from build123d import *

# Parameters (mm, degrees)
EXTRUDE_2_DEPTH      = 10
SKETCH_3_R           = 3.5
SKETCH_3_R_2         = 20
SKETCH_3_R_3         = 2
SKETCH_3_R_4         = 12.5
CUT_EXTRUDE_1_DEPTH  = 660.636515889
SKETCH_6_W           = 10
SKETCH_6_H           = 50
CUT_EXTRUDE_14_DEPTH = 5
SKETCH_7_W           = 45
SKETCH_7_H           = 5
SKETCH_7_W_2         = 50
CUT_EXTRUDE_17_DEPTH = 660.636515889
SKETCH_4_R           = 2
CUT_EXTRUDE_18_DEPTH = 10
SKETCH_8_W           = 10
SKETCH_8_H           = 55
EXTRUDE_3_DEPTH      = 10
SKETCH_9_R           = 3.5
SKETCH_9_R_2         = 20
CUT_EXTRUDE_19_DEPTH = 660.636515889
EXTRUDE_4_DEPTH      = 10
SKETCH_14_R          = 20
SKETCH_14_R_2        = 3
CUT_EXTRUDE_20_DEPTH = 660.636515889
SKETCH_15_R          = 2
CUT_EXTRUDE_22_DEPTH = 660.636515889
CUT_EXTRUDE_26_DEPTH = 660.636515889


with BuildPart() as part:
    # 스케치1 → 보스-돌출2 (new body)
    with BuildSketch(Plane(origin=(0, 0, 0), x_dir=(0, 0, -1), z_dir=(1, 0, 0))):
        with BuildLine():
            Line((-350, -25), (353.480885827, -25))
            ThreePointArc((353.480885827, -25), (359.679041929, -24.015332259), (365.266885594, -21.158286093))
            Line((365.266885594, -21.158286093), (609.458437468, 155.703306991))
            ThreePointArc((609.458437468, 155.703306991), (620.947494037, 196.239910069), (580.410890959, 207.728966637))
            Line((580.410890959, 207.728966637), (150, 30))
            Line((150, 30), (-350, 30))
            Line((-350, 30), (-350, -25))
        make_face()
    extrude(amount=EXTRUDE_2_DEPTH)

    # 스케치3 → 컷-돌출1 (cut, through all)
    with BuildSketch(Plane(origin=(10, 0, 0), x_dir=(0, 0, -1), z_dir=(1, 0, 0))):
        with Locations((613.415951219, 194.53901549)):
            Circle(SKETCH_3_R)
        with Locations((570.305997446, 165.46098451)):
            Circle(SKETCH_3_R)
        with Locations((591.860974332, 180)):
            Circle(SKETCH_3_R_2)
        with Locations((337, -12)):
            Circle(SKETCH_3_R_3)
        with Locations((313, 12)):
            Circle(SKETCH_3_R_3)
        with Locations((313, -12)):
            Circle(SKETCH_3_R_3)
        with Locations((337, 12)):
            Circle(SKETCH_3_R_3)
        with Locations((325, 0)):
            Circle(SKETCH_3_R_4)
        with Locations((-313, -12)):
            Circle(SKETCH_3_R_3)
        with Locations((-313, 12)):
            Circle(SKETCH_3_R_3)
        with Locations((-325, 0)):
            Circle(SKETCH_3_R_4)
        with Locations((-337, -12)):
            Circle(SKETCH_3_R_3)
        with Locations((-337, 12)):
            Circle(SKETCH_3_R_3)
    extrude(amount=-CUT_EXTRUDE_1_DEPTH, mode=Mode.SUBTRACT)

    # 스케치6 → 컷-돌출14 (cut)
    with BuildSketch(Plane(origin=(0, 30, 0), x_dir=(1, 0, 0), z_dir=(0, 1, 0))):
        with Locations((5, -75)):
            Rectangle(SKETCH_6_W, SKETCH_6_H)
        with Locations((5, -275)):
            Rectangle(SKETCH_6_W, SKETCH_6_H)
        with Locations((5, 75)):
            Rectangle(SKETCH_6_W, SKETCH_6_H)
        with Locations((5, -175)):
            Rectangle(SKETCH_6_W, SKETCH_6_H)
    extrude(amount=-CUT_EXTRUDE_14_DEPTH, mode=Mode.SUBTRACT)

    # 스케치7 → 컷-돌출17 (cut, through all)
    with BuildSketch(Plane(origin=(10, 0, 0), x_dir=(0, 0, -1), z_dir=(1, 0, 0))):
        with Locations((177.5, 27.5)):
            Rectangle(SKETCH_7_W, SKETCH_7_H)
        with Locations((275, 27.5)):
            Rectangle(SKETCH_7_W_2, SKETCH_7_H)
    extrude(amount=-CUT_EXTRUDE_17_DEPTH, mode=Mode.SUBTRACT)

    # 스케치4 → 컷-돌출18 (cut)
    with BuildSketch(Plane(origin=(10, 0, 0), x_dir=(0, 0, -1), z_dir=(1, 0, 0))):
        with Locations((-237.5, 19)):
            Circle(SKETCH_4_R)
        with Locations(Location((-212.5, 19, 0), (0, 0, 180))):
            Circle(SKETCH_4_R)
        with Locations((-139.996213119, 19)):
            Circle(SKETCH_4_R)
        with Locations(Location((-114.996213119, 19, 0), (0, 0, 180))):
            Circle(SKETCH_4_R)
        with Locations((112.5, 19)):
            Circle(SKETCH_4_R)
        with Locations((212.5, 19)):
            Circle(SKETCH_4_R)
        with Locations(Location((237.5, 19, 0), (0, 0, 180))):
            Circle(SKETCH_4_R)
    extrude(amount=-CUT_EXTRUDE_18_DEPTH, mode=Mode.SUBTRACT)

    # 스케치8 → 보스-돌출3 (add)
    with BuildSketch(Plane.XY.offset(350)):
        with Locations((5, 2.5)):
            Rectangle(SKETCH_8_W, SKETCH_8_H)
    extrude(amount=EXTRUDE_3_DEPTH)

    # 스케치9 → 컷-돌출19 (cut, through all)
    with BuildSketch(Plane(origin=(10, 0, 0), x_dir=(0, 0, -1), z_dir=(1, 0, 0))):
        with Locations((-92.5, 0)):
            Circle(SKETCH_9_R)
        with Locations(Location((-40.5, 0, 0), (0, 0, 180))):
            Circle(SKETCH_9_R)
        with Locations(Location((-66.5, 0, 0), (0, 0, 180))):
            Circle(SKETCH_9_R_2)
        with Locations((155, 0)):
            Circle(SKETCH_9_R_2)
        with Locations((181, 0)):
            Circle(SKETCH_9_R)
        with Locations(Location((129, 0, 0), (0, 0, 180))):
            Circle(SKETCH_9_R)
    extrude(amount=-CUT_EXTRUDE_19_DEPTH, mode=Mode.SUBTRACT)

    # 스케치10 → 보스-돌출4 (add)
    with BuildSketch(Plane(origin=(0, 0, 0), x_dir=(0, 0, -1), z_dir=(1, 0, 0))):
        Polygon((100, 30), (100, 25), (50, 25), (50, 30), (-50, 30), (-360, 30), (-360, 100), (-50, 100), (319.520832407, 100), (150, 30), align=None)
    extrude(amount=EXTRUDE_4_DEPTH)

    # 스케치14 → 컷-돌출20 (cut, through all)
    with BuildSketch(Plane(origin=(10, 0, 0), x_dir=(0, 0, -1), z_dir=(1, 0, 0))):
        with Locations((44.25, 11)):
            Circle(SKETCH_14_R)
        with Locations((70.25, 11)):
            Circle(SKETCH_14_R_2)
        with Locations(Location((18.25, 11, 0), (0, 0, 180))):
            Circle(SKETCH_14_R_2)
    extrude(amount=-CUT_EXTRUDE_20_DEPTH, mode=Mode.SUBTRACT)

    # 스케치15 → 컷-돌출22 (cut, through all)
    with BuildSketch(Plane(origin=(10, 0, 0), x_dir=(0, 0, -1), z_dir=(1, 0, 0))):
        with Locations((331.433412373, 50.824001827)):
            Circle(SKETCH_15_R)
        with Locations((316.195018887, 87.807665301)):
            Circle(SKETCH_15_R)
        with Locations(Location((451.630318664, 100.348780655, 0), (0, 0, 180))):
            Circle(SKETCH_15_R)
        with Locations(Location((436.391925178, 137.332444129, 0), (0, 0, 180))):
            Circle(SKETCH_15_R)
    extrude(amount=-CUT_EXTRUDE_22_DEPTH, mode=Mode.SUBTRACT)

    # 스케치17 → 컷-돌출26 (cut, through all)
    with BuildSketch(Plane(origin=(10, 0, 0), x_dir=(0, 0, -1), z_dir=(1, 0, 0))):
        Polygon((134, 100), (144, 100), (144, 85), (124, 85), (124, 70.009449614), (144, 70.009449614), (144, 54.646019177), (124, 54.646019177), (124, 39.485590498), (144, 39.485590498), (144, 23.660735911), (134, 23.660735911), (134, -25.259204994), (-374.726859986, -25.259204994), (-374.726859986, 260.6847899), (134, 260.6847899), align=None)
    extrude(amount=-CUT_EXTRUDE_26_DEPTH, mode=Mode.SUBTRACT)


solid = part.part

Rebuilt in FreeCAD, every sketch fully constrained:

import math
import FreeCAD as App
import Part
import Sketcher
from FreeCAD import Vector
Q = App.Units.Quantity


def add_polygon(sketch, points):
    """Adds a closed chain of lines whose ends are joined by coincident constraints."""
    first, n = sketch.GeometryCount, len(points)
    for a, b in zip(points, points[1:] + points[:1]):
        sketch.addGeometry(Part.LineSegment(App.Vector(*a, 0), App.Vector(*b, 0)), False)
    for i in range(n):
        sketch.addConstraint(Sketcher.Constraint("Coincident", first + i, 2, first + (i + 1) % n, 1))

doc = App.newDocument("Part")
body = doc.addObject("PartDesign::Body", "Body")

sketch1 = body.newObject("Sketcher::SketchObject", "Sketch")
sketch1.AttachmentSupport = (doc.getObject("YZ_Plane"), [""])
sketch1.MapMode = "FlatFace"
sketch1.addGeometry(Part.LineSegment(Vector(-25, 350, 0), Vector(-25, -353.480886, 0)), False)
sketch1.addGeometry(Part.ArcOfCircle(Part.Circle(Vector(-5, -353.480886, 0), Vector(0, 0, 1), 20), math.radians(-180), math.radians(-143.892651)), False)
sketch1.addGeometry(Part.LineSegment(Vector(-21.158286, -365.266886, 0), Vector(155.703307, -609.458437, 0)), False)
sketch1.addGeometry(Part.ArcOfCircle(Part.Circle(Vector(181.716137, -594.934664, 0), Vector(0, 0, 1), 29.792739), math.radians(-150.824016), math.radians(29.175984)), False)
sketch1.addGeometry(Part.LineSegment(Vector(207.728967, -580.410891, 0), Vector(30, -150, 0)), False)
sketch1.addGeometry(Part.LineSegment(Vector(30, -150, 0), Vector(30, 350, 0)), False)
sketch1.addGeometry(Part.LineSegment(Vector(30, 350, 0), Vector(-25, 350, 0)), False)
sketch1.addConstraint(Sketcher.Constraint("Tangent", 0, 2, 1, 1))
sketch1.addConstraint(Sketcher.Constraint("Coincident", 1, 2, 2, 1))
sketch1.addConstraint(Sketcher.Constraint("Coincident", 2, 2, 3, 1))
sketch1.addConstraint(Sketcher.Constraint("Coincident", 3, 2, 4, 1))
sketch1.addConstraint(Sketcher.Constraint("Coincident", 4, 2, 5, 1))
sketch1.addConstraint(Sketcher.Constraint("Coincident", 5, 2, 6, 1))
sketch1.addConstraint(Sketcher.Constraint("Coincident", 6, 2, 0, 1))
sketch1.addConstraint(Sketcher.Constraint("Vertical", 0))
sketch1.addConstraint(Sketcher.Constraint("Vertical", 5))
sketch1.addConstraint(Sketcher.Constraint("Horizontal", 6))
sketch1.addConstraint(Sketcher.Constraint("Radius", 1, Q("20 mm")))
sketch1.addConstraint(Sketcher.Constraint("DistanceX", 6, 2, 6, 1, Q("55 mm")))
sketch1.addConstraint(Sketcher.Constraint("DistanceY", 5, 1, 5, 2, Q("500 mm")))
sketch1.addConstraint(Sketcher.Constraint("DistanceX", 1, 3, -1, 1, Q("5 mm")))
sketch1.addConstraint(Sketcher.Constraint("DistanceY", 4, 2, -1, 1, Q("150 mm")))
sketch1.addConstraint(Sketcher.Constraint("Radius", 3, Q("29.792739 mm")))
sketch1.addConstraint(Sketcher.Constraint("DistanceY", 1, 2, 0, 2, Q("11.786 mm")))
sketch1.addConstraint(Sketcher.Constraint("DistanceY", 0, 2, 0, 1, Q("703.480886 mm")))
sketch1.addConstraint(Sketcher.Constraint("DistanceY", 3, 2, -1, 1, Q("580.410891 mm")))
sketch1.addConstraint(Sketcher.Constraint("DistanceY", 3, 3, 1, 3, Q("241.453778 mm")))
sketch1.addConstraint(Sketcher.Constraint("DistanceX", 2, 2, 3, 3, Q("26.01283 mm")))
sketch1.addConstraint(Sketcher.Constraint("Distance", 2, Q("301.512085 mm")))
pad1 = body.newObject("PartDesign::Pad", "Pad")
pad1.Profile = sketch1
pad1.Length = 10

sketch2 = body.newObject("Sketcher::SketchObject", "Sketch001")
sketch2.AttachmentSupport = (doc.getObject("YZ_Plane"), [""])
sketch2.MapMode = "FlatFace"
sketch2.AttachmentOffset = App.Placement(Vector(0, 0, 10), App.Rotation())
sketch2.addGeometry(Part.Circle(Vector(194.539015, -613.415951, 0), Vector(0, 0, 1), 3.5), False)
sketch2.addGeometry(Part.Circle(Vector(165.460985, -570.305997, 0), Vector(0, 0, 1), 3.5), False)
sketch2.addGeometry(Part.Circle(Vector(180, -591.860974, 0), Vector(0, 0, 1), 20), False)
sketch2.addGeometry(Part.Circle(Vector(-12, -337, 0), Vector(0, 0, 1), 2), False)
sketch2.addGeometry(Part.Circle(Vector(12, -313, 0), Vector(0, 0, 1), 2), False)
sketch2.addGeometry(Part.Circle(Vector(-12, -313, 0), Vector(0, 0, 1), 2), False)
sketch2.addGeometry(Part.Circle(Vector(12, -337, 0), Vector(0, 0, 1), 2), False)
sketch2.addGeometry(Part.Circle(Vector(0, -325, 0), Vector(0, 0, 1), 12.5), False)
sketch2.addGeometry(Part.Circle(Vector(-12, 313, 0), Vector(0, 0, 1), 2), False)
sketch2.addGeometry(Part.Circle(Vector(12, 313, 0), Vector(0, 0, 1), 2), False)
sketch2.addGeometry(Part.Circle(Vector(0, 325, 0), Vector(0, 0, 1), 12.5), False)
sketch2.addGeometry(Part.Circle(Vector(-12, 337, 0), Vector(0, 0, 1), 2), False)
sketch2.addGeometry(Part.Circle(Vector(12, 337, 0), Vector(0, 0, 1), 2), False)
sketch2.addConstraint(Sketcher.Constraint("Equal", 0, 1))
sketch2.addConstraint(Sketcher.Constraint("Equal", 3, 4))
sketch2.addConstraint(Sketcher.Constraint("Equal", 4, 5))
sketch2.addConstraint(Sketcher.Constraint("Equal", 5, 6))
sketch2.addConstraint(Sketcher.Constraint("Equal", 6, 8))
sketch2.addConstraint(Sketcher.Constraint("Equal", 8, 9))
sketch2.addConstraint(Sketcher.Constraint("Equal", 7, 10))
sketch2.addConstraint(Sketcher.Constraint("Equal", 9, 11))
sketch2.addConstraint(Sketcher.Constraint("Equal", 11, 12))
sketch2.addConstraint(Sketcher.Constraint("Symmetric", 4, 3, 8, 3, -1, 1))
sketch2.addConstraint(Sketcher.Constraint("Symmetric", 5, 3, 9, 3, -1, 1))
sketch2.addConstraint(Sketcher.Constraint("Symmetric", 7, 3, 10, 3, -1, 1))
sketch2.addConstraint(Sketcher.Constraint("Symmetric", 6, 3, 11, 3, -1, 1))
sketch2.addConstraint(Sketcher.Constraint("Symmetric", 3, 3, 12, 3, -1, 1))
sketch2.addConstraint(Sketcher.Constraint("Symmetric", 4, 3, 5, 3, -2))
sketch2.addConstraint(Sketcher.Constraint("Symmetric", 3, 3, 6, 3, -2))
sketch2.addConstraint(Sketcher.Constraint("PointOnObject", 7, 3, -2))
sketch2.addConstraint(Sketcher.Constraint("Vertical", 3, 3, 5, 3))
sketch2.addConstraint(Sketcher.Constraint("Diameter", 0, Q("7 mm")))
sketch2.addConstraint(Sketcher.Constraint("Diameter", 2, Q("40 mm")))
sketch2.addConstraint(Sketcher.Constraint("Diameter", 3, Q("4 mm")))
sketch2.addConstraint(Sketcher.Constraint("Diameter", 7, Q("25 mm")))
sketch2.addConstraint(Sketcher.Constraint("DistanceX", -1, 1, 2, 3, Q("180 mm")))
sketch2.addConstraint(Sketcher.Constraint("DistanceX", 3, 3, -1, 1, Q("12 mm")))
sketch2.addConstraint(Sketcher.Constraint("DistanceY", 3, 3, -1, 1, Q("337 mm")))
sketch2.addConstraint(Sketcher.Constraint("DistanceY", 4, 3, -1, 1, Q("313 mm")))
sketch2.addConstraint(Sketcher.Constraint("DistanceY", 7, 3, -1, 1, Q("325 mm")))
sketch2.addConstraint(Sketcher.Constraint("DistanceY", 0, 3, -1, 1, Q("613.415951 mm")))
sketch2.addConstraint(Sketcher.Constraint("DistanceX", 1, 3, 0, 3, Q("29.078031 mm")))
sketch2.addConstraint(Sketcher.Constraint("DistanceX", -1, 1, 0, 3, Q("194.539015 mm")))
sketch2.addConstraint(Sketcher.Constraint("DistanceY", 1, 3, -1, 1, Q("570.305997 mm")))
sketch2.addConstraint(Sketcher.Constraint("DistanceY", 2, 3, -1, 1, Q("591.860974 mm")))
pocket1 = body.newObject("PartDesign::Pocket", "Pocket")
pocket1.Profile = sketch2
pocket1.Type = "ThroughAll"

sketch3 = body.newObject("Sketcher::SketchObject", "Sketch002")
sketch3.AttachmentSupport = (doc.getObject("XZ_Plane"), [""])
sketch3.MapMode = "FlatFace"
sketch3.AttachmentOffset = App.Placement(Vector(0, 0, -30), App.Rotation())
add_polygon(sketch3, [(0, 50), (0, 100), (10, 100), (10, 50)])
add_polygon(sketch3, [(0, 250), (0, 300), (10, 300), (10, 250)])
add_polygon(sketch3, [(0, -100), (0, -50), (10, -50), (10, -100)])
add_polygon(sketch3, [(0, 150), (0, 200), (10, 200), (10, 150)])
sketch3.addConstraint(Sketcher.Constraint("Vertical", 0))
sketch3.addConstraint(Sketcher.Constraint("Horizontal", 1))
sketch3.addConstraint(Sketcher.Constraint("Vertical", 2))
sketch3.addConstraint(Sketcher.Constraint("Horizontal", 3))
sketch3.addConstraint(Sketcher.Constraint("Vertical", 4))
sketch3.addConstraint(Sketcher.Constraint("Horizontal", 5))
sketch3.addConstraint(Sketcher.Constraint("Vertical", 6))
sketch3.addConstraint(Sketcher.Constraint("Horizontal", 7))
sketch3.addConstraint(Sketcher.Constraint("Vertical", 8))
sketch3.addConstraint(Sketcher.Constraint("Horizontal", 9))
sketch3.addConstraint(Sketcher.Constraint("Vertical", 10))
sketch3.addConstraint(Sketcher.Constraint("Horizontal", 11))
sketch3.addConstraint(Sketcher.Constraint("Vertical", 12))
sketch3.addConstraint(Sketcher.Constraint("Horizontal", 13))
sketch3.addConstraint(Sketcher.Constraint("Vertical", 14))
sketch3.addConstraint(Sketcher.Constraint("Horizontal", 15))
sketch3.addConstraint(Sketcher.Constraint("Symmetric", 3, 2, 8, 2, -1, 1))
sketch3.addConstraint(Sketcher.Constraint("Symmetric", 1, 2, 10, 2, -1))
sketch3.addConstraint(Sketcher.Constraint("PointOnObject", 0, 2, -2))
sketch3.addConstraint(Sketcher.Constraint("PointOnObject", 4, 2, -2))
sketch3.addConstraint(Sketcher.Constraint("PointOnObject", 12, 2, -2))
sketch3.addConstraint(Sketcher.Constraint("Vertical", 2, 2, 5, 2))
sketch3.addConstraint(Sketcher.Constraint("Vertical", 10, 2, 13, 2))
sketch3.addConstraint(Sketcher.Constraint("Equal", 2, 4))
sketch3.addConstraint(Sketcher.Constraint("Equal", 10, 12))
sketch3.addConstraint(Sketcher.Constraint("DistanceX", 1, 1, 1, 2, Q("10 mm")))
sketch3.addConstraint(Sketcher.Constraint("DistanceY", 0, 1, 0, 2, Q("50 mm")))
sketch3.addConstraint(Sketcher.Constraint("DistanceY", -1, 1, 0, 2, Q("100 mm")))
sketch3.addConstraint(Sketcher.Constraint("DistanceY", -1, 1, 4, 2, Q("300 mm")))
sketch3.addConstraint(Sketcher.Constraint("DistanceY", -1, 1, 12, 2, Q("200 mm")))
pocket2 = body.newObject("PartDesign::Pocket", "Pocket001")
pocket2.Profile = sketch3
pocket2.Length = 5
pocket2.Reversed = True

sketch4 = body.newObject("Sketcher::SketchObject", "Sketch003")
sketch4.AttachmentSupport = (doc.getObject("YZ_Plane"), [""])
sketch4.MapMode = "FlatFace"
sketch4.AttachmentOffset = App.Placement(Vector(0, 0, 10), App.Rotation())
add_polygon(sketch4, [(30, -155), (25, -155), (25, -200), (30, -200)])
add_polygon(sketch4, [(30, -250), (25, -250), (25, -300), (30, -300)])
sketch4.addConstraint(Sketcher.Constraint("Horizontal", 0))
sketch4.addConstraint(Sketcher.Constraint("Vertical", 1))
sketch4.addConstraint(Sketcher.Constraint("Horizontal", 2))
sketch4.addConstraint(Sketcher.Constraint("Vertical", 3))
sketch4.addConstraint(Sketcher.Constraint("Horizontal", 4))
sketch4.addConstraint(Sketcher.Constraint("Vertical", 5))
sketch4.addConstraint(Sketcher.Constraint("Horizontal", 6))
sketch4.addConstraint(Sketcher.Constraint("Vertical", 7))
sketch4.addConstraint(Sketcher.Constraint("Vertical", 1, 2, 4, 2))
sketch4.addConstraint(Sketcher.Constraint("Vertical", 3, 2, 6, 2))
sketch4.addConstraint(Sketcher.Constraint("DistanceX", 0, 2, 0, 1, Q("5 mm")))
sketch4.addConstraint(Sketcher.Constraint("DistanceY", 1, 2, 1, 1, Q("45 mm")))
sketch4.addConstraint(Sketcher.Constraint("DistanceY", 5, 2, 5, 1, Q("50 mm")))
sketch4.addConstraint(Sketcher.Constraint("DistanceX", -1, 1, 0, 2, Q("25 mm")))
sketch4.addConstraint(Sketcher.Constraint("DistanceY", 0, 2, -1, 1, Q("155 mm")))
sketch4.addConstraint(Sketcher.Constraint("DistanceY", 4, 2, -1, 1, Q("250 mm")))
pocket3 = body.newObject("PartDesign::Pocket", "Pocket002")
pocket3.Profile = sketch4
pocket3.Type = "ThroughAll"

sketch5 = body.newObject("Sketcher::SketchObject", "Sketch004")
sketch5.AttachmentSupport = (doc.getObject("YZ_Plane"), [""])
sketch5.MapMode = "FlatFace"
sketch5.AttachmentOffset = App.Placement(Vector(0, 0, 10), App.Rotation())
sketch5.addGeometry(Part.Circle(Vector(19, 237.5, 0), Vector(0, 0, 1), 2), False)
sketch5.addGeometry(Part.Circle(Vector(19, 212.5, 0), Vector(0, 0, 1), 2), False)
sketch5.addGeometry(Part.Circle(Vector(19, 139.996213, 0), Vector(0, 0, 1), 2), False)
sketch5.addGeometry(Part.Circle(Vector(19, 114.996213, 0), Vector(0, 0, 1), 2), False)
sketch5.addGeometry(Part.Circle(Vector(19, -112.5, 0), Vector(0, 0, 1), 2), False)
sketch5.addGeometry(Part.Circle(Vector(19, -212.5, 0), Vector(0, 0, 1), 2), False)
sketch5.addGeometry(Part.Circle(Vector(19, -237.5, 0), Vector(0, 0, 1), 2), False)
sketch5.addConstraint(Sketcher.Constraint("Equal", 0, 1))
sketch5.addConstraint(Sketcher.Constraint("Equal", 1, 2))
sketch5.addConstraint(Sketcher.Constraint("Equal", 2, 3))
sketch5.addConstraint(Sketcher.Constraint("Equal", 3, 4))
sketch5.addConstraint(Sketcher.Constraint("Equal", 4, 5))
sketch5.addConstraint(Sketcher.Constraint("Equal", 5, 6))
sketch5.addConstraint(Sketcher.Constraint("Symmetric", 1, 3, 5, 3, -1))
sketch5.addConstraint(Sketcher.Constraint("Symmetric", 0, 3, 6, 3, -1))
sketch5.addConstraint(Sketcher.Constraint("Vertical", 0, 3, 1, 3))
sketch5.addConstraint(Sketcher.Constraint("Vertical", 1, 3, 2, 3))
sketch5.addConstraint(Sketcher.Constraint("Vertical", 2, 3, 3, 3))
sketch5.addConstraint(Sketcher.Constraint("Vertical", 3, 3, 4, 3))
sketch5.addConstraint(Sketcher.Constraint("Diameter", 0, Q("4 mm")))
sketch5.addConstraint(Sketcher.Constraint("DistanceX", -1, 1, 0, 3, Q("19 mm")))
sketch5.addConstraint(Sketcher.Constraint("DistanceY", 1, 3, 0, 3, Q("25 mm")))
sketch5.addConstraint(Sketcher.Constraint("DistanceY", 3, 3, 2, 3, Q("25 mm")))
sketch5.addConstraint(Sketcher.Constraint("DistanceY", 4, 3, 1, 3, Q("325 mm")))
sketch5.addConstraint(Sketcher.Constraint("DistanceY", 5, 3, 4, 3, Q("100 mm")))
sketch5.addConstraint(Sketcher.Constraint("DistanceY", -1, 1, 2, 3, Q("139.996213 mm")))
pocket4 = body.newObject("PartDesign::Pocket", "Pocket003")
pocket4.Profile = sketch5
pocket4.Length = 10

sketch6 = body.newObject("Sketcher::SketchObject", "Sketch005")
sketch6.AttachmentSupport = (doc.getObject("XY_Plane"), [""])
sketch6.MapMode = "FlatFace"
sketch6.AttachmentOffset = App.Placement(Vector(0, 0, 350), App.Rotation())
add_polygon(sketch6, [(0, 30), (0, -25), (10, -25), (10, 30)])
sketch6.addConstraint(Sketcher.Constraint("Vertical", 0))
sketch6.addConstraint(Sketcher.Constraint("Horizontal", 1))
sketch6.addConstraint(Sketcher.Constraint("Vertical", 2))
sketch6.addConstraint(Sketcher.Constraint("Horizontal", 3))
sketch6.addConstraint(Sketcher.Constraint("PointOnObject", 0, 2, -2))
sketch6.addConstraint(Sketcher.Constraint("DistanceX", 1, 1, 1, 2, Q("10 mm")))
sketch6.addConstraint(Sketcher.Constraint("DistanceY", 0, 2, 0, 1, Q("55 mm")))
sketch6.addConstraint(Sketcher.Constraint("DistanceY", 0, 2, -1, 1, Q("25 mm")))
pad2 = body.newObject("PartDesign::Pad", "Pad001")
pad2.Profile = sketch6
pad2.Length = 10

sketch7 = body.newObject("Sketcher::SketchObject", "Sketch006")
sketch7.AttachmentSupport = (doc.getObject("YZ_Plane"), [""])
sketch7.MapMode = "FlatFace"
sketch7.AttachmentOffset = App.Placement(Vector(0, 0, 10), App.Rotation())
sketch7.addGeometry(Part.Circle(Vector(0, 92.5, 0), Vector(0, 0, 1), 3.5), False)
sketch7.addGeometry(Part.Circle(Vector(0, 40.5, 0), Vector(0, 0, 1), 3.5), False)
sketch7.addGeometry(Part.Circle(Vector(0, 66.5, 0), Vector(0, 0, 1), 20), False)
sketch7.addGeometry(Part.Circle(Vector(0, -155, 0), Vector(0, 0, 1), 20), False)
sketch7.addGeometry(Part.Circle(Vector(0, -181, 0), Vector(0, 0, 1), 3.5), False)
sketch7.addGeometry(Part.Circle(Vector(0, -129, 0), Vector(0, 0, 1), 3.5), False)
sketch7.addConstraint(Sketcher.Constraint("Equal", 0, 1))
sketch7.addConstraint(Sketcher.Constraint("Equal", 2, 3))
sketch7.addConstraint(Sketcher.Constraint("Equal", 1, 4))
sketch7.addConstraint(Sketcher.Constraint("Equal", 4, 5))
sketch7.addConstraint(Sketcher.Constraint("PointOnObject", 0, 3, -2))
sketch7.addConstraint(Sketcher.Constraint("PointOnObject", 1, 3, -2))
sketch7.addConstraint(Sketcher.Constraint("PointOnObject", 2, 3, -2))
sketch7.addConstraint(Sketcher.Constraint("PointOnObject", 3, 3, -2))
sketch7.addConstraint(Sketcher.Constraint("PointOnObject", 4, 3, -2))
sketch7.addConstraint(Sketcher.Constraint("PointOnObject", 5, 3, -2))
sketch7.addConstraint(Sketcher.Constraint("Diameter", 0, Q("7 mm")))
sketch7.addConstraint(Sketcher.Constraint("Diameter", 2, Q("40 mm")))
sketch7.addConstraint(Sketcher.Constraint("DistanceY", 3, 3, -1, 1, Q("155 mm")))
sketch7.addConstraint(Sketcher.Constraint("DistanceY", 4, 3, -1, 1, Q("181 mm")))
sketch7.addConstraint(Sketcher.Constraint("DistanceY", 5, 3, -1, 1, Q("129 mm")))
sketch7.addConstraint(Sketcher.Constraint("DistanceY", 1, 3, 0, 3, Q("52 mm")))
sketch7.addConstraint(Sketcher.Constraint("DistanceY", 2, 3, 0, 3, Q("26 mm")))
sketch7.addConstraint(Sketcher.Constraint("DistanceY", -1, 1, 0, 3, Q("92.5 mm")))
pocket5 = body.newObject("PartDesign::Pocket", "Pocket004")
pocket5.Profile = sketch7
pocket5.Type = "ThroughAll"

sketch8 = body.newObject("Sketcher::SketchObject", "Sketch007")
sketch8.AttachmentSupport = (doc.getObject("YZ_Plane"), [""])
sketch8.MapMode = "FlatFace"
add_polygon(sketch8, [(25, -100), (30, -100), (30, -150), (100, -319.520832), (100, 360), (30, 360), (30, -50), (25, -50)])
sketch8.addConstraint(Sketcher.Constraint("Horizontal", 0))
sketch8.addConstraint(Sketcher.Constraint("Vertical", 1))
sketch8.addConstraint(Sketcher.Constraint("Vertical", 3))
sketch8.addConstraint(Sketcher.Constraint("Horizontal", 4))
sketch8.addConstraint(Sketcher.Constraint("Vertical", 5))
sketch8.addConstraint(Sketcher.Constraint("Horizontal", 6))
sketch8.addConstraint(Sketcher.Constraint("Vertical", 7))
sketch8.addConstraint(Sketcher.Constraint("Vertical", 1, 2, 4, 2))
sketch8.addConstraint(Sketcher.Constraint("Equal", 1, 7))
sketch8.addConstraint(Sketcher.Constraint("DistanceX", 0, 1, 0, 2, Q("5 mm")))
sketch8.addConstraint(Sketcher.Constraint("DistanceX", 4, 2, 4, 1, Q("70 mm")))
sketch8.addConstraint(Sketcher.Constraint("DistanceY", 1, 2, 1, 1, Q("50 mm")))
sketch8.addConstraint(Sketcher.Constraint("DistanceY", 5, 2, 5, 1, Q("410 mm")))
sketch8.addConstraint(Sketcher.Constraint("DistanceX", -1, 1, 0, 2, Q("30 mm")))
sketch8.addConstraint(Sketcher.Constraint("DistanceY", 0, 2, -1, 1, Q("100 mm")))
sketch8.addConstraint(Sketcher.Constraint("Distance", 2, Q("183.404778 mm")))
pad3 = body.newObject("PartDesign::Pad", "Pad002")
pad3.Profile = sketch8
pad3.Length = 10

sketch9 = body.newObject("Sketcher::SketchObject", "Sketch008")
sketch9.AttachmentSupport = (doc.getObject("YZ_Plane"), [""])
sketch9.MapMode = "FlatFace"
sketch9.AttachmentOffset = App.Placement(Vector(0, 0, 10), App.Rotation())
sketch9.addGeometry(Part.Circle(Vector(11, -44.25, 0), Vector(0, 0, 1), 20), False)
sketch9.addGeometry(Part.Circle(Vector(11, -70.25, 0), Vector(0, 0, 1), 3), False)
sketch9.addGeometry(Part.Circle(Vector(11, -18.25, 0), Vector(0, 0, 1), 3), False)
sketch9.addConstraint(Sketcher.Constraint("Equal", 1, 2))
sketch9.addConstraint(Sketcher.Constraint("Vertical", 0, 3, 1, 3))
sketch9.addConstraint(Sketcher.Constraint("Vertical", 1, 3, 2, 3))
sketch9.addConstraint(Sketcher.Constraint("Diameter", 0, Q("40 mm")))
sketch9.addConstraint(Sketcher.Constraint("Diameter", 1, Q("6 mm")))
sketch9.addConstraint(Sketcher.Constraint("DistanceX", -1, 1, 0, 3, Q("11 mm")))
sketch9.addConstraint(Sketcher.Constraint("DistanceY", 1, 3, 0, 3, Q("26 mm")))
sketch9.addConstraint(Sketcher.Constraint("DistanceY", 0, 3, 2, 3, Q("26 mm")))
sketch9.addConstraint(Sketcher.Constraint("DistanceY", 0, 3, -1, 1, Q("44.25 mm")))
pocket6 = body.newObject("PartDesign::Pocket", "Pocket005")
pocket6.Profile = sketch9
pocket6.Type = "ThroughAll"

sketch10 = body.newObject("Sketcher::SketchObject", "Sketch009")
sketch10.AttachmentSupport = (doc.getObject("YZ_Plane"), [""])
sketch10.MapMode = "FlatFace"
sketch10.AttachmentOffset = App.Placement(Vector(0, 0, 10), App.Rotation())
sketch10.addGeometry(Part.Circle(Vector(50.824002, -331.433412, 0), Vector(0, 0, 1), 2), False)
sketch10.addGeometry(Part.Circle(Vector(87.807665, -316.195019, 0), Vector(0, 0, 1), 2), False)
sketch10.addGeometry(Part.Circle(Vector(100.348781, -451.630319, 0), Vector(0, 0, 1), 2), False)
sketch10.addGeometry(Part.Circle(Vector(137.332444, -436.391925, 0), Vector(0, 0, 1), 2), False)
sketch10.addConstraint(Sketcher.Constraint("Equal", 0, 1))
sketch10.addConstraint(Sketcher.Constraint("Equal", 1, 2))
sketch10.addConstraint(Sketcher.Constraint("Equal", 2, 3))
sketch10.addConstraint(Sketcher.Constraint("Diameter", 0, Q("4 mm")))
sketch10.addConstraint(Sketcher.Constraint("DistanceX", -1, 1, 0, 3, Q("50.824002 mm")))
sketch10.addConstraint(Sketcher.Constraint("DistanceY", 2, 3, 1, 3, Q("135.4353 mm")))
sketch10.addConstraint(Sketcher.Constraint("DistanceY", 1, 3, -1, 1, Q("316.195019 mm")))
sketch10.addConstraint(Sketcher.Constraint("DistanceX", -1, 1, 2, 3, Q("100.348781 mm")))
sketch10.addConstraint(Sketcher.Constraint("DistanceX", 1, 3, 3, 3, Q("49.524779 mm")))
sketch10.addConstraint(Sketcher.Constraint("DistanceY", 0, 3, -1, 1, Q("331.433412 mm")))
sketch10.addConstraint(Sketcher.Constraint("DistanceX", -1, 1, 1, 3, Q("87.807665 mm")))
sketch10.addConstraint(Sketcher.Constraint("DistanceY", 3, 3, -1, 1, Q("436.391925 mm")))
pocket7 = body.newObject("PartDesign::Pocket", "Pocket006")
pocket7.Profile = sketch10
pocket7.Type = "ThroughAll"

sketch11 = body.newObject("Sketcher::SketchObject", "Sketch010")
sketch11.AttachmentSupport = (doc.getObject("YZ_Plane"), [""])
sketch11.MapMode = "FlatFace"
sketch11.AttachmentOffset = App.Placement(Vector(0, 0, 10), App.Rotation())
add_polygon(sketch11, [(100, -144), (100, -134), (260.68479, -134), (260.68479, 374.72686), (-25.259205, 374.72686), (-25.259205, -134), (23.660736, -134), (23.660736, -144), (39.48559, -144), (39.48559, -124), (54.646019, -124), (54.646019, -144), (70.00945, -144), (70.00945, -124), (85, -124), (85, -144)])
sketch11.addConstraint(Sketcher.Constraint("Vertical", 0))
sketch11.addConstraint(Sketcher.Constraint("Horizontal", 1))
sketch11.addConstraint(Sketcher.Constraint("Vertical", 2))
sketch11.addConstraint(Sketcher.Constraint("Horizontal", 3))
sketch11.addConstraint(Sketcher.Constraint("Vertical", 4))
sketch11.addConstraint(Sketcher.Constraint("Horizontal", 5))
sketch11.addConstraint(Sketcher.Constraint("Vertical", 6))
sketch11.addConstraint(Sketcher.Constraint("Horizontal", 7))
sketch11.addConstraint(Sketcher.Constraint("Vertical", 8))
sketch11.addConstraint(Sketcher.Constraint("Horizontal", 9))
sketch11.addConstraint(Sketcher.Constraint("Vertical", 10))
sketch11.addConstraint(Sketcher.Constraint("Horizontal", 11))
sketch11.addConstraint(Sketcher.Constraint("Vertical", 12))
sketch11.addConstraint(Sketcher.Constraint("Horizontal", 13))
sketch11.addConstraint(Sketcher.Constraint("Vertical", 14))
sketch11.addConstraint(Sketcher.Constraint("Horizontal", 15))
sketch11.addConstraint(Sketcher.Constraint("Horizontal", 1, 2, 4, 2))
sketch11.addConstraint(Sketcher.Constraint("Horizontal", 7, 2, 10, 2))
sketch11.addConstraint(Sketcher.Constraint("Horizontal", 9, 2, 12, 2))
sketch11.addConstraint(Sketcher.Constraint("Horizontal", 11, 2, 14, 2))
sketch11.addConstraint(Sketcher.Constraint("DistanceX", 15, 1, 15, 2, Q("15 mm")))
sketch11.addConstraint(Sketcher.Constraint("DistanceY", 0, 1, 0, 2, Q("10 mm")))
sketch11.addConstraint(Sketcher.Constraint("DistanceY", 8, 1, 8, 2, Q("20 mm")))
sketch11.addConstraint(Sketcher.Constraint("DistanceX", -1, 1, 0, 2, Q("100 mm")))
sketch11.addConstraint(Sketcher.Constraint("DistanceY", 0, 2, -1, 1, Q("134 mm")))
sketch11.addConstraint(Sketcher.Constraint("DistanceX", 1, 1, 1, 2, Q("160.68479 mm")))
sketch11.addConstraint(Sketcher.Constraint("DistanceX", 5, 1, 5, 2, Q("48.919941 mm")))
sketch11.addConstraint(Sketcher.Constraint("DistanceX", 9, 1, 9, 2, Q("15.160429 mm")))
sketch11.addConstraint(Sketcher.Constraint("DistanceX", 11, 1, 11, 2, Q("15.36343 mm")))
sketch11.addConstraint(Sketcher.Constraint("DistanceX", 13, 1, 13, 2, Q("14.99055 mm")))
sketch11.addConstraint(Sketcher.Constraint("DistanceY", 2, 1, 2, 2, Q("508.72686 mm")))
sketch11.addConstraint(Sketcher.Constraint("DistanceX", 3, 2, 3, 1, Q("285.943995 mm")))
pocket8 = body.newObject("PartDesign::Pocket", "Pocket007")
pocket8.Profile = sketch11
pocket8.Type = "ThroughAll"

doc.recompute()
